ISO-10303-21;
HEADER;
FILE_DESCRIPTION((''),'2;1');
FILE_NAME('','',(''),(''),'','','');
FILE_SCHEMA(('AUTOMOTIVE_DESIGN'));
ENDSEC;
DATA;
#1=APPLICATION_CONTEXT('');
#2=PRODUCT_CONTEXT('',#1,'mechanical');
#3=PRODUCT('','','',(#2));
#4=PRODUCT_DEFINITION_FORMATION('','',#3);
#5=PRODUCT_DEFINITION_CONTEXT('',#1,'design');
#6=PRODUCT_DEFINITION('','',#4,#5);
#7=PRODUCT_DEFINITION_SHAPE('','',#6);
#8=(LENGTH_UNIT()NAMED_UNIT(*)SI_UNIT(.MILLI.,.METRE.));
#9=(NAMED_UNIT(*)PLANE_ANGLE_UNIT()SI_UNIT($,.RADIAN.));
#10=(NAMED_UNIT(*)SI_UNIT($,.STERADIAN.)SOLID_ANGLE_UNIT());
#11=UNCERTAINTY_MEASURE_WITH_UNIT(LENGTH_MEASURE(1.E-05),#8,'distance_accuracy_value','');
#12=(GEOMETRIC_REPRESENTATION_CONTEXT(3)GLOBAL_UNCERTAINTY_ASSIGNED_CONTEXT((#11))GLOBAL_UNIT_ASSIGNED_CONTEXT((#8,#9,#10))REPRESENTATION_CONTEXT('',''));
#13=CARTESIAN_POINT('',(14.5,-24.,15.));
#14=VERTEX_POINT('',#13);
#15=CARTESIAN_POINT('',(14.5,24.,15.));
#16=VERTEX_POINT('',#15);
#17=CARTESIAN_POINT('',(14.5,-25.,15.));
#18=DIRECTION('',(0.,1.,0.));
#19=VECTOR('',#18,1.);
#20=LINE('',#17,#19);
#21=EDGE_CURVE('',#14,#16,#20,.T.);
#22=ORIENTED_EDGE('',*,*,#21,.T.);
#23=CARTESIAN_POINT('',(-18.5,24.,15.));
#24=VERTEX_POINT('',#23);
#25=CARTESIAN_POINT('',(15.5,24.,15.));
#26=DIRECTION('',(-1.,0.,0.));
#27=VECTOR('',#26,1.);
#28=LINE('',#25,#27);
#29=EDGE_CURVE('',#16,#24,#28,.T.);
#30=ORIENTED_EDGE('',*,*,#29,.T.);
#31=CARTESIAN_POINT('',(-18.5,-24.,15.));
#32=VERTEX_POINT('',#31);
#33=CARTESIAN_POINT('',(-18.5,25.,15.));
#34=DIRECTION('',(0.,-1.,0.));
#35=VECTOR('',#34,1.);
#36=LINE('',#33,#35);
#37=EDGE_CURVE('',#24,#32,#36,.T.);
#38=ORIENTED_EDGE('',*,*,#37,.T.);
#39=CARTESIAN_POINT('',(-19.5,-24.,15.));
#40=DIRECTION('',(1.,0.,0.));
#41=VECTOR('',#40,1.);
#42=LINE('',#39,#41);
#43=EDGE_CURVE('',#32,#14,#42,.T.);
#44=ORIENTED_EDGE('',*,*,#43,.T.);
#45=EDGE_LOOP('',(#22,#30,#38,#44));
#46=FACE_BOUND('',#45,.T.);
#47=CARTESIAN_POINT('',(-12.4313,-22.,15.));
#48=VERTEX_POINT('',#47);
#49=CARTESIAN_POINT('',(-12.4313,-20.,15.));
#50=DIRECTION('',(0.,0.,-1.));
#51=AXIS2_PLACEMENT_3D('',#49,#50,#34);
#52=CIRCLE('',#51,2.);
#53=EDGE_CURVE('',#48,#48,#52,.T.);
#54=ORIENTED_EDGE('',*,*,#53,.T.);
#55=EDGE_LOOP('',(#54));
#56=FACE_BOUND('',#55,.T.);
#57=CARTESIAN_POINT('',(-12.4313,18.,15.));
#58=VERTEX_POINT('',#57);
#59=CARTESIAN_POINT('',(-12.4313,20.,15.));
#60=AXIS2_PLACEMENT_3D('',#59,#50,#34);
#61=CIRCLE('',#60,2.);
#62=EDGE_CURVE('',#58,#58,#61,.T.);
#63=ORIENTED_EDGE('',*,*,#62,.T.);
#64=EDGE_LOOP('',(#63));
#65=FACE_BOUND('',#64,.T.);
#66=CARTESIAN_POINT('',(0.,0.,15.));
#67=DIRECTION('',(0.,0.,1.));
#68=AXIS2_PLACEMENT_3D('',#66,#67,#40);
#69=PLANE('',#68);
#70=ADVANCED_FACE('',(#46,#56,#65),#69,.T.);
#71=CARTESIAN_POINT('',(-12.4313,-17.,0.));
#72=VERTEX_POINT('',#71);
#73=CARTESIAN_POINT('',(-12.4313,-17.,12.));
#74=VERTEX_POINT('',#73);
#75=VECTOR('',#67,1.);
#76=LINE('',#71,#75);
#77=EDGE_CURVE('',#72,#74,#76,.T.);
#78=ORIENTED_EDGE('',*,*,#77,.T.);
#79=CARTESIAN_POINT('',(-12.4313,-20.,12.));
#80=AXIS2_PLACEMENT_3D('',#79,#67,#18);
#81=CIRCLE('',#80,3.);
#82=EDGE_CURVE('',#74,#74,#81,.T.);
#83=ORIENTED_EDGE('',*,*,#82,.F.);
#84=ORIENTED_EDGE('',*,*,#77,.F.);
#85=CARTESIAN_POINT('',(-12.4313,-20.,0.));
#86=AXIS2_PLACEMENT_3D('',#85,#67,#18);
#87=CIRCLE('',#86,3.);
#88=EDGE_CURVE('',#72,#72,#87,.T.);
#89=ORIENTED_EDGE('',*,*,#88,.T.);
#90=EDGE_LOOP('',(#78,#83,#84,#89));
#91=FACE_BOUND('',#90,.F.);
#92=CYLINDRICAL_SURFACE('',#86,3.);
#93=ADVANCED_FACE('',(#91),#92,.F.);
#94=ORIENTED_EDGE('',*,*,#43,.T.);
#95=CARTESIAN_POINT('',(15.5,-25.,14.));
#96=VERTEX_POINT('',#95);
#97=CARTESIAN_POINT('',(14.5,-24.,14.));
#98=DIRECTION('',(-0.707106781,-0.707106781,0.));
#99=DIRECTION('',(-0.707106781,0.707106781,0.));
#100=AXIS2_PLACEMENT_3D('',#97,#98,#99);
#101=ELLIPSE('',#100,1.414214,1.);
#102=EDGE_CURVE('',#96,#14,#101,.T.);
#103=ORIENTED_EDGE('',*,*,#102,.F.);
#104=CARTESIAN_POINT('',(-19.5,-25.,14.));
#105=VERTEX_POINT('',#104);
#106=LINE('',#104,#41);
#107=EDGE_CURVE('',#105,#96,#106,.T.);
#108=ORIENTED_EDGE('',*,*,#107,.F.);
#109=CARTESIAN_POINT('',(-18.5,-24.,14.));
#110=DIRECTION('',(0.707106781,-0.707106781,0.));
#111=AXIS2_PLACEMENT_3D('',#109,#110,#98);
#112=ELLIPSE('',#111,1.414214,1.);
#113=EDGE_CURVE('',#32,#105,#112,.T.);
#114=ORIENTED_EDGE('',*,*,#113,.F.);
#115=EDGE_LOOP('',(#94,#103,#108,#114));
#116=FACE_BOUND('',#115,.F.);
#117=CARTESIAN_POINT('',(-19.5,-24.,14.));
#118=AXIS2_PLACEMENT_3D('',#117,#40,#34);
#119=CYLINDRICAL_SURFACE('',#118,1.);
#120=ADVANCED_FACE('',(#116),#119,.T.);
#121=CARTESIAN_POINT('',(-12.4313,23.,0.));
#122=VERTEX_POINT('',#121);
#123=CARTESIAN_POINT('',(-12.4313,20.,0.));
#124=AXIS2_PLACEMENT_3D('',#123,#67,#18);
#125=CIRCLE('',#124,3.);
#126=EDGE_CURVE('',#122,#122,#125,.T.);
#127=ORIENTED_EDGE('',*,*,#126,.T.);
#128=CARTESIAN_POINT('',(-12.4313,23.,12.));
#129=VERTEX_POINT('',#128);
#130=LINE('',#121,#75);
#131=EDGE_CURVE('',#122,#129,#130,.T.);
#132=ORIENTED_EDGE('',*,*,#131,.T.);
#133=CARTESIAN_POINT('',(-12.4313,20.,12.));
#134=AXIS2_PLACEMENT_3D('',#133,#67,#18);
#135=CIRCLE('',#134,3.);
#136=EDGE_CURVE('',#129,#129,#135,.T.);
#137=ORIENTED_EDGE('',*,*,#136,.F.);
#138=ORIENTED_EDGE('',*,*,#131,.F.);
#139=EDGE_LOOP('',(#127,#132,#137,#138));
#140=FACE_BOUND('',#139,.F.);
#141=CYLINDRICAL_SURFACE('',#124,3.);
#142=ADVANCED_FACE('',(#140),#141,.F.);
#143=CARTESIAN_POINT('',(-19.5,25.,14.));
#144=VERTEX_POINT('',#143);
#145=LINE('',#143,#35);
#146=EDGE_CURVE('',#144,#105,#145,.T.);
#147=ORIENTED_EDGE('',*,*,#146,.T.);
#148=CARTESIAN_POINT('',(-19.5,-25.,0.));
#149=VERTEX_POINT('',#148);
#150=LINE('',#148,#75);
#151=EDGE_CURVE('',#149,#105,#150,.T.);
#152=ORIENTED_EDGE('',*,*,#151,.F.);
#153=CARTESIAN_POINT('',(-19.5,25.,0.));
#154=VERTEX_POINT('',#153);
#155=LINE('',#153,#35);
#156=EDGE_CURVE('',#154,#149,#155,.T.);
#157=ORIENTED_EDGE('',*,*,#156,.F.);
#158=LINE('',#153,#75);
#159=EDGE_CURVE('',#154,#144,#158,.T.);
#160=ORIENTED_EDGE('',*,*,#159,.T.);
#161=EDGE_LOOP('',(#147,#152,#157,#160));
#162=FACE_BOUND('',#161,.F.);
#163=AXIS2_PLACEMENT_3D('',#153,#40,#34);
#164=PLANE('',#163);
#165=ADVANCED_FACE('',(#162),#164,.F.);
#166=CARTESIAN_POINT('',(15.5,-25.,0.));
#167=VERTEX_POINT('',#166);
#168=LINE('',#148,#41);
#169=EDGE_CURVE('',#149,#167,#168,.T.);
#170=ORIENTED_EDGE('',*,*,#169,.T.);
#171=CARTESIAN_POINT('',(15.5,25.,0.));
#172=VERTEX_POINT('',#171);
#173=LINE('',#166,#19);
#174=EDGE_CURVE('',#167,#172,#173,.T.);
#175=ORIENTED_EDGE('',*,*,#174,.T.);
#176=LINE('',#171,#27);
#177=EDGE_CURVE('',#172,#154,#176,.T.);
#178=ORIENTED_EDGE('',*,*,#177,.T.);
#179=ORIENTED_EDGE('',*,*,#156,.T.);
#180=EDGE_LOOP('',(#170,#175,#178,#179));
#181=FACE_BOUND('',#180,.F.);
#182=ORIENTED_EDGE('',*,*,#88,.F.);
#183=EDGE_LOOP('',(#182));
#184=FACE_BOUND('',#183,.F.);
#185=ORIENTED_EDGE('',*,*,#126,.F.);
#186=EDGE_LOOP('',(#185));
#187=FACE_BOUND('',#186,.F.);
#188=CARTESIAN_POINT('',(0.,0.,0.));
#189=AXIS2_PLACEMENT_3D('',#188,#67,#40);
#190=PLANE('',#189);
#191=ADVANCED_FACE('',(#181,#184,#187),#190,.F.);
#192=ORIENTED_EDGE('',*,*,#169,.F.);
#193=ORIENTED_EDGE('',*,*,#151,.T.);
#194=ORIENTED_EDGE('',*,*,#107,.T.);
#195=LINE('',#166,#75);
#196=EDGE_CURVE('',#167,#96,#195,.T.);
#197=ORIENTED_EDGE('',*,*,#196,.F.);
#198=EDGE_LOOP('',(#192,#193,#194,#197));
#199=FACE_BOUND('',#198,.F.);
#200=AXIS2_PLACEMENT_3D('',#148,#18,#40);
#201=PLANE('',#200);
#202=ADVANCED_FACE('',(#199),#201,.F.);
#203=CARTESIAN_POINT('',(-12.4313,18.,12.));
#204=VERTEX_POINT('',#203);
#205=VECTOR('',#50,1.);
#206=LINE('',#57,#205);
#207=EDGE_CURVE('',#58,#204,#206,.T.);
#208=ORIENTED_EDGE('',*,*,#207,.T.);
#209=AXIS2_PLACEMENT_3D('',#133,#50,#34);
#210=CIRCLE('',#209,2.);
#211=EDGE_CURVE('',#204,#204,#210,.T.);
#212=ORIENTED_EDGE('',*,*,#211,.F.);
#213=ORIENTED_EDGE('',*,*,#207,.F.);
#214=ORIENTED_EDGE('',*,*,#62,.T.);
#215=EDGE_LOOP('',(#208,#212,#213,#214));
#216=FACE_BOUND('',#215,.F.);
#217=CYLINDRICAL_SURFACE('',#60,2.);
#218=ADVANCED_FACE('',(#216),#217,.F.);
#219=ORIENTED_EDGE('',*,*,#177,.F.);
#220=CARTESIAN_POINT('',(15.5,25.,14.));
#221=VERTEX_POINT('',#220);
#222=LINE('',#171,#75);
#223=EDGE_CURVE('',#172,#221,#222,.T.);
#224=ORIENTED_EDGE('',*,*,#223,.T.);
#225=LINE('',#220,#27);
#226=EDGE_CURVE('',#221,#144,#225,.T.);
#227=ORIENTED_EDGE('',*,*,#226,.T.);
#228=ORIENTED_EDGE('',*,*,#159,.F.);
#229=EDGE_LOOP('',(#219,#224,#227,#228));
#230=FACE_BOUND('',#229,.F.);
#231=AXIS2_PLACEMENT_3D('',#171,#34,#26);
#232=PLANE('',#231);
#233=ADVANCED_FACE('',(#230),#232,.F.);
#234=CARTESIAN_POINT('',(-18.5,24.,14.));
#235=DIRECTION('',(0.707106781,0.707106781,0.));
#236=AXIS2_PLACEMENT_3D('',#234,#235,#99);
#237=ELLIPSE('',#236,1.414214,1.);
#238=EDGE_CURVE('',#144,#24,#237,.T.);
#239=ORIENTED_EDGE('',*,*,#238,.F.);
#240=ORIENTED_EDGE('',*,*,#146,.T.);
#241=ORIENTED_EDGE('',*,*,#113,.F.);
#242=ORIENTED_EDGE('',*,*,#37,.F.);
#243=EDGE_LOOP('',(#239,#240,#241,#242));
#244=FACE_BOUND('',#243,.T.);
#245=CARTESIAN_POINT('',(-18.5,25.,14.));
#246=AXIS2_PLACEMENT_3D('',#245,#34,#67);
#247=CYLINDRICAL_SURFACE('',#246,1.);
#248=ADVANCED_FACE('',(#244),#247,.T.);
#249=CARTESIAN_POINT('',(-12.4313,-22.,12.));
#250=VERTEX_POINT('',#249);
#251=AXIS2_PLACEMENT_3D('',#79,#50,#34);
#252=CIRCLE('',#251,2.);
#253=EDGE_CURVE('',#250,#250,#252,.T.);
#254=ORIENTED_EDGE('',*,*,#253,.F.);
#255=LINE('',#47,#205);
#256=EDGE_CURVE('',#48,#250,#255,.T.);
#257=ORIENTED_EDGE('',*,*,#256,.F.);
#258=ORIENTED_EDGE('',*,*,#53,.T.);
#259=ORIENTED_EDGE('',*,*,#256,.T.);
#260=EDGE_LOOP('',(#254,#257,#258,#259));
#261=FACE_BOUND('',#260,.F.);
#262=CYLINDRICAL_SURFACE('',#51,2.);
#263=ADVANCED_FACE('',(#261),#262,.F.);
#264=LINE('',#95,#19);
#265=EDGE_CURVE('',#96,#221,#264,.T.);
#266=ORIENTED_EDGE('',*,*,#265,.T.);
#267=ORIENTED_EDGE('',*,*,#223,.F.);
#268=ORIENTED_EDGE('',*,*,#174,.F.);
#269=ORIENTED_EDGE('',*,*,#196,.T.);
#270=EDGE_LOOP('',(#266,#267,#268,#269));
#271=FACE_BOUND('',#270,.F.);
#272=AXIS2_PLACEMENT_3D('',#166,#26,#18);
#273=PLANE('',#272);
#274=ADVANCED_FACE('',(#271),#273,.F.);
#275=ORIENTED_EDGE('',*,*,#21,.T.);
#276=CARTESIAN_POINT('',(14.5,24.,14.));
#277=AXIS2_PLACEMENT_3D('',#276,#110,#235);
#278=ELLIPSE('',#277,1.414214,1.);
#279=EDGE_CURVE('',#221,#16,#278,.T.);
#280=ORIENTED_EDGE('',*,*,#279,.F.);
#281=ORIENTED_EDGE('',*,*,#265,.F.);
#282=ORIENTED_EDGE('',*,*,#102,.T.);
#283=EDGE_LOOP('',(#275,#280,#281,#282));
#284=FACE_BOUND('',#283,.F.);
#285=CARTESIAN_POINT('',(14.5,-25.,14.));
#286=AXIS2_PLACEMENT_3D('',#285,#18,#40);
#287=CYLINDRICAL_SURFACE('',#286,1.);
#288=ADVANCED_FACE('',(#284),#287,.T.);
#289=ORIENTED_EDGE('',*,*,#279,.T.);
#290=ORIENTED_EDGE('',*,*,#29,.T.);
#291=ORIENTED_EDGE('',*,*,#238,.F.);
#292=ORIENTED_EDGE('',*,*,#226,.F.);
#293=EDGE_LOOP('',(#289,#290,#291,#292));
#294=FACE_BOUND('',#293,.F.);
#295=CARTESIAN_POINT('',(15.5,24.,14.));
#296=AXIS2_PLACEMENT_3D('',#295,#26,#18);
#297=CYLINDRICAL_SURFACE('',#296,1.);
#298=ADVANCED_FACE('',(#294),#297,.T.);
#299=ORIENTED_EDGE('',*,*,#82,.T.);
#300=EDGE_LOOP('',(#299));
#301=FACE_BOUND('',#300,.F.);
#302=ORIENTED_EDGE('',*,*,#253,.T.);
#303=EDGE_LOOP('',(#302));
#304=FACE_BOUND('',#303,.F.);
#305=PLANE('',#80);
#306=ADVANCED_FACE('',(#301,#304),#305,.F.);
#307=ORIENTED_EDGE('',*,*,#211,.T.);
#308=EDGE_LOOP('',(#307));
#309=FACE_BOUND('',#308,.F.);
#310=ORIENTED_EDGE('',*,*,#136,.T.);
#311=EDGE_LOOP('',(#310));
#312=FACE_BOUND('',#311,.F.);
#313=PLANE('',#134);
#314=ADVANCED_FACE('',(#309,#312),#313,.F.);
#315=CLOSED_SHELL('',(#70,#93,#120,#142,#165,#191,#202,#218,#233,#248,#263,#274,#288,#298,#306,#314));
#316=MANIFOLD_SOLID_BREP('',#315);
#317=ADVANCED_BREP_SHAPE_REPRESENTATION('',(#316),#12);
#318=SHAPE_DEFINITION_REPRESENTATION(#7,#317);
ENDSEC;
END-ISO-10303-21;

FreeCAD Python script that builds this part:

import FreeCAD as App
import Part
import Sketcher


def edges_at(feature, points):
    """Names of the edges that pass closest to the given points."""
    edges = feature.Shape.Edges
    near = lambda p: min(range(len(edges)), key=lambda i: edges[i].distToShape(Part.Vertex(*p))[0])
    return sorted({f"Edge{near(p) + 1}" for p in points})

doc = App.newDocument("Part")
body = doc.addObject("PartDesign::Body", "Body")

sketch1 = body.newObject("Sketcher::SketchObject", "Sketch")
sketch1.AttachmentSupport = (doc.getObject("XY_Plane"), [""])
sketch1.MapMode = "FlatFace"
sketch1.addGeometry([
    Part.LineSegment(App.Vector(16, -25, 0), App.Vector(16, 25, 0)),
    Part.LineSegment(App.Vector(16, 25, 0), App.Vector(-20, 25, 0)),
    Part.LineSegment(App.Vector(-20, 25, 0), App.Vector(-20, -25, 0)),
    Part.LineSegment(App.Vector(-20, -25, 0), App.Vector(16, -25, 0)),
], False)
sketch1.addConstraint([
    Sketcher.Constraint("Coincident", 0, 2, 1, 1),
    Sketcher.Constraint("Coincident", 1, 2, 2, 1),
    Sketcher.Constraint("Coincident", 2, 2, 3, 1),
    Sketcher.Constraint("Coincident", 3, 2, 0, 1),
    Sketcher.Constraint("Vertical", 0),
    Sketcher.Constraint("Horizontal", 1),
    Sketcher.Constraint("Vertical", 2),
    Sketcher.Constraint("Horizontal", 3),
    Sketcher.Constraint("DistanceX", 1, 2, 1, 1, 35.0),
    Sketcher.Constraint("DistanceY", 0, 1, 0, 2, 50.0),
    Sketcher.Constraint("DistanceY", -1, 1, 0, 2, 25.0),
    Sketcher.Constraint("DistanceX", -1, 1, 0, 2, 15.5),
])
pad1 = body.newObject("PartDesign::Pad", "Pad")
pad1.Profile = sketch1
pad1.Length = 15

sketch2 = body.newObject("Sketcher::SketchObject", "Sketch001")
sketch2.AttachmentSupport = (doc.getObject("XY_Plane"), [""])
sketch2.MapMode = "FlatFace"
sketch2.AttachmentOffset = App.Placement(App.Vector(0, 0, 15), App.Rotation())
sketch2.addGeometry([
    Part.Circle(App.Vector(-12.4, -20, 0), App.Vector(0, 0, 1), 2),
    Part.Circle(App.Vector(-12.4, 20, 0), App.Vector(0, 0, 1), 2),
], False)
sketch2.addConstraint([
    Sketcher.Constraint("Equal", 0, 1),
    Sketcher.Constraint("Symmetric", 0, 3, 1, 3, -1),
    Sketcher.Constraint("Diameter", 0, 4.0),
    Sketcher.Constraint("DistanceY", 0, 3, -1, 1, 20.0),
    Sketcher.Constraint("DistanceX", 0, 3, -1, 1, 12.4313),
])
doc.recompute()
hole = body.newObject("PartDesign::Hole", "Hole")
hole.Profile = sketch2
hole.ThreadType = "None"
hole.Diameter = 4
hole.DepthType = "ThroughAll"
doc.recompute()

fillet = body.newObject("PartDesign::Fillet", "Fillet")
fillet.Base = (hole, edges_at(hole, [
    (15.5, 0, 15),
    (-2, 25, 15),
    (-19.5, 0, 15),
    (-2, -25, 15),
]))
fillet.Radius = 1

sketch3 = body.newObject("Sketcher::SketchObject", "Sketch002")
sketch3.AttachmentSupport = (doc.getObject("XY_Plane"), [""])
sketch3.MapMode = "FlatFace"
sketch3.addGeometry([
    Part.Circle(App.Vector(-12.4, 20, 0), App.Vector(0, 0, 1), 3),
    Part.Circle(App.Vector(-12.4, -20, 0), App.Vector(0, 0, 1), 3),
], False)
sketch3.addConstraint([
    Sketcher.Constraint("Equal", 0, 1),
    Sketcher.Constraint("Symmetric", 0, 3, 1, 3, -1),
    Sketcher.Constraint("Diameter", 0, 6.0),
    Sketcher.Constraint("DistanceY", -1, 1, 0, 3, 20.0),
    Sketcher.Constraint("DistanceX", 0, 3, -1, 1, 12.4313),
])
doc.recompute()
hole2 = body.newObject("PartDesign::Hole", "Hole001")
hole2.Profile = sketch3
hole2.ThreadType = "None"
hole2.Diameter = 6
hole2.DepthType = "Dimension"
hole2.Depth = 12
hole2.DrillPoint = "Flat"
hole2.Reversed = True

doc.recompute()
